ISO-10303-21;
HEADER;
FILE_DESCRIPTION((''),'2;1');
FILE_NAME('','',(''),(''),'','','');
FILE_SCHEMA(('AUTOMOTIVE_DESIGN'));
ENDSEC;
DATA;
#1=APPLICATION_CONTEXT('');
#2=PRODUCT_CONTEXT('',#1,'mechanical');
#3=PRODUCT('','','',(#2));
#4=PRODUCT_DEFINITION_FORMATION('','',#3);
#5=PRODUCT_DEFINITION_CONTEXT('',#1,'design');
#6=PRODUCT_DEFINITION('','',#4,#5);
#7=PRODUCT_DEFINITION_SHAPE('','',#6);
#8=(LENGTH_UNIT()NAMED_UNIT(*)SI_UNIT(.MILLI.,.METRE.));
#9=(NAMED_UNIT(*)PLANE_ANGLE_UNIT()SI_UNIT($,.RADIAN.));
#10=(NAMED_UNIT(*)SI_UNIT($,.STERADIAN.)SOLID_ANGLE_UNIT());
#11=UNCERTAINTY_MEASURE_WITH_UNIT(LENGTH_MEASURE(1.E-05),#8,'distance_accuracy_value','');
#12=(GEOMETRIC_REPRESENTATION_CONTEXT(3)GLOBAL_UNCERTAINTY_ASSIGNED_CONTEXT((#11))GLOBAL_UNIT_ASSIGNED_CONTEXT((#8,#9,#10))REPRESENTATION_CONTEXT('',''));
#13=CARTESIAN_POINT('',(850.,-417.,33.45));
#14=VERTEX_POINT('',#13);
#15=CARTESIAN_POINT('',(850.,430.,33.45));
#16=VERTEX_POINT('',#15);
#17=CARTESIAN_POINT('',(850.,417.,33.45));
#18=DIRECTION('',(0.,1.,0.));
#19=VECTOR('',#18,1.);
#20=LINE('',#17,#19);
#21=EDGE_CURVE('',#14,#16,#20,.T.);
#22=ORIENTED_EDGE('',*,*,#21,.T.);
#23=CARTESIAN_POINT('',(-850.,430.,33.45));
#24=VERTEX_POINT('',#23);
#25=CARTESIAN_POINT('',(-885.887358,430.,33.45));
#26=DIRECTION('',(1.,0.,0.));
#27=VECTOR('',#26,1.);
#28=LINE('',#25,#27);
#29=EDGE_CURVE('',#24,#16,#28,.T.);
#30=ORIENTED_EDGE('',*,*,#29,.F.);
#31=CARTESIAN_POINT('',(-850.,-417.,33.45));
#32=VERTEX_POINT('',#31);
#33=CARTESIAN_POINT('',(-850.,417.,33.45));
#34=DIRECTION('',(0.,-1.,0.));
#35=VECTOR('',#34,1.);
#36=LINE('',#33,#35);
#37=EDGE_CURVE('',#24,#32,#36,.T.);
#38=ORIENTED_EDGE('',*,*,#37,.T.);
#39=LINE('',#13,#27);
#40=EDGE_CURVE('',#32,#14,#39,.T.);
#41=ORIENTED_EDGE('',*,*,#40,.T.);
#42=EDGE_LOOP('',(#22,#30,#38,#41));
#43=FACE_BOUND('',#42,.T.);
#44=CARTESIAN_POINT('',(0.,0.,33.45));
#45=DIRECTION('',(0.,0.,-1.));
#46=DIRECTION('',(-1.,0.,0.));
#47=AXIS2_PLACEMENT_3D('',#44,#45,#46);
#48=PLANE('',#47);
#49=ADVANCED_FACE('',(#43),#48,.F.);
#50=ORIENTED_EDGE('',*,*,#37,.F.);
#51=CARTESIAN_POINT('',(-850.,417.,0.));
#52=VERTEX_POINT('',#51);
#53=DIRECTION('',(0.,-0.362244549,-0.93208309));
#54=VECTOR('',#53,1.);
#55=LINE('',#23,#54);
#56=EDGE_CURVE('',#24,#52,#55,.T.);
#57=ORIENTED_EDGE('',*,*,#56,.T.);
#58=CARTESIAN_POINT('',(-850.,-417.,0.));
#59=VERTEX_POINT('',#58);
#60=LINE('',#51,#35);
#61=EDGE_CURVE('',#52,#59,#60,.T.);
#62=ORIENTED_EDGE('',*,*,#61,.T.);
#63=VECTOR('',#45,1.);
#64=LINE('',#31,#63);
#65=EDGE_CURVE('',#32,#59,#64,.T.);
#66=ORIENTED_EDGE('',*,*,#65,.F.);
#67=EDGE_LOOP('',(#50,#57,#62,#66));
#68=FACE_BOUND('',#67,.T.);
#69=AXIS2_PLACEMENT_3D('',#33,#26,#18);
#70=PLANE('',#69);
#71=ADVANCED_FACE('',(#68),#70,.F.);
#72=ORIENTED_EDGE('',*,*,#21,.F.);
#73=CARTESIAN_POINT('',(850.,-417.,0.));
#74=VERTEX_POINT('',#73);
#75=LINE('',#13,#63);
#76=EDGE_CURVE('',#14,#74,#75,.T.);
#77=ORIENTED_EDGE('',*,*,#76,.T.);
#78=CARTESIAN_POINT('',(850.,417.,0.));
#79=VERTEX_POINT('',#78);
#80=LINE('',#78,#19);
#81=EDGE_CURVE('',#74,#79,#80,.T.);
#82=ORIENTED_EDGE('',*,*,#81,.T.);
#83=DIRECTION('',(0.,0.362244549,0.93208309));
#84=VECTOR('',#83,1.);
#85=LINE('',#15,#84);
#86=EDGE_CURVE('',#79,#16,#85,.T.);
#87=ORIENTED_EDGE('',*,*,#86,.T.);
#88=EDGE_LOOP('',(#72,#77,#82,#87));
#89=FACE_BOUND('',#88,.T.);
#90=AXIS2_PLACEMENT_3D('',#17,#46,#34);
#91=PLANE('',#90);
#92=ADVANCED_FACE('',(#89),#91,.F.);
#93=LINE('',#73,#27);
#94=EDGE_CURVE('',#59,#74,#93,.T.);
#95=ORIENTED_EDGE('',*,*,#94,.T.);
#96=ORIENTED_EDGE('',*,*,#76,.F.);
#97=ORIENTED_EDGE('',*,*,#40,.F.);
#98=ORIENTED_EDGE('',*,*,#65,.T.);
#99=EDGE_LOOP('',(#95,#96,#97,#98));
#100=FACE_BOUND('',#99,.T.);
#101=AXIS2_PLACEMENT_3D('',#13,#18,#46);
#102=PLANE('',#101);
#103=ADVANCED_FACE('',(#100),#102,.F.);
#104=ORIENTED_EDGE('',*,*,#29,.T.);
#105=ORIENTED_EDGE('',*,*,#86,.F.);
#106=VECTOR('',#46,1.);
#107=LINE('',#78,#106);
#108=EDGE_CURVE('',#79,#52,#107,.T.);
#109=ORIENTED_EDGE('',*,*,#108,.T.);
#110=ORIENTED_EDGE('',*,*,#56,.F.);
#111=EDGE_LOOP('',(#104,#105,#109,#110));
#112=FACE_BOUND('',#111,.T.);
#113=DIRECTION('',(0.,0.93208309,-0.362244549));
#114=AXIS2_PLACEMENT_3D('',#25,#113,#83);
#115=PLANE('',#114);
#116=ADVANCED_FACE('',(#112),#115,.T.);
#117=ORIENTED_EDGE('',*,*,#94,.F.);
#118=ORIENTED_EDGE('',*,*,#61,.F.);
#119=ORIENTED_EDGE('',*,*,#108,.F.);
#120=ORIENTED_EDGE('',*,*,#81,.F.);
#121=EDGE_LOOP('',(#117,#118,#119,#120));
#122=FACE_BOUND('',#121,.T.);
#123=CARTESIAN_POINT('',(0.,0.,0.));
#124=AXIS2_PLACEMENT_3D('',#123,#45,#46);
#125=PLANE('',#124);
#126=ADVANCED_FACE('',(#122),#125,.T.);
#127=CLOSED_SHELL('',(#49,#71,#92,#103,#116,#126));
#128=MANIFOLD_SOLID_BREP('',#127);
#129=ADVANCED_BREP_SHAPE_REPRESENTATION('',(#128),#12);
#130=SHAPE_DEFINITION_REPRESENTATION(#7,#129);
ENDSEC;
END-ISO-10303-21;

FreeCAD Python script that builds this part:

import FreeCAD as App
import Part
import Sketcher
Q = App.Units.Quantity


def add_polygon(sketch, points):
    """Adds a closed chain of lines whose ends are joined by coincident constraints."""
    first, n = sketch.GeometryCount, len(points)
    for a, b in zip(points, points[1:] + points[:1]):
        sketch.addGeometry(Part.LineSegment(App.Vector(*a, 0), App.Vector(*b, 0)), False)
    for i in range(n):
        sketch.addConstraint(Sketcher.Constraint("Coincident", first + i, 2, first + (i + 1) % n, 1))

doc = App.newDocument("Part")
body = doc.addObject("PartDesign::Body", "Body")

sketch1 = doc.addObject("Sketcher::SketchObject", "Sketch")
body.addObject(sketch1)
sketch1.AttachmentSupport = (doc.XY_Plane, [""])
sketch1.MapMode = "FlatFace"
add_polygon(sketch1, [(-850, 417), (-850, -417), (850, -417), (850, 417)])
sketch1.addConstraint([
    Sketcher.Constraint("Vertical", 0),
    Sketcher.Constraint("Horizontal", 1),
    Sketcher.Constraint("Vertical", 2),
    Sketcher.Constraint("Horizontal", 3),
    Sketcher.Constraint("Symmetric", 0, 2, 2, 2, -1, 1),
    Sketcher.Constraint("DistanceX", 1, 1, 1, 2, Q("1700 mm")),
    Sketcher.Constraint("DistanceY", 0, 2, 0, 1, Q("834 mm")),
])
pad1 = doc.addObject("PartDesign::Pad", "Pad")
body.addObject(pad1)
pad1.Profile = sketch1
pad1.Length = 33.45

sketch2 = doc.addObject("Sketcher::SketchObject", "Sketch001")
body.addObject(sketch2)
sketch2.AttachmentSupport = (doc.YZ_Plane, [""])
sketch2.MapMode = "FlatFace"
sketch2.AttachmentOffset = App.Placement(App.Vector(0, 0, 850), App.Rotation())
add_polygon(sketch2, [(430, 33), (417, 33), (417, 0)])
sketch2.addConstraint([
    Sketcher.Constraint("Horizontal", 0),
    Sketcher.Constraint("Vertical", 1),
    Sketcher.Constraint("PointOnObject", 1, 2, -1),
    Sketcher.Constraint("DistanceX", 0, 2, 0, 1, Q("13 mm")),
    Sketcher.Constraint("DistanceX", -1, 1, 0, 2, Q("417 mm")),
    Sketcher.Constraint("DistanceY", 1, 2, 1, 1, Q("33.45 mm")),
])
pad2 = doc.addObject("PartDesign::Pad", "Pad001")
body.addObject(pad2)
pad2.Profile = sketch2
pad2.Length = 1700
pad2.Reversed = True

doc.recompute()
